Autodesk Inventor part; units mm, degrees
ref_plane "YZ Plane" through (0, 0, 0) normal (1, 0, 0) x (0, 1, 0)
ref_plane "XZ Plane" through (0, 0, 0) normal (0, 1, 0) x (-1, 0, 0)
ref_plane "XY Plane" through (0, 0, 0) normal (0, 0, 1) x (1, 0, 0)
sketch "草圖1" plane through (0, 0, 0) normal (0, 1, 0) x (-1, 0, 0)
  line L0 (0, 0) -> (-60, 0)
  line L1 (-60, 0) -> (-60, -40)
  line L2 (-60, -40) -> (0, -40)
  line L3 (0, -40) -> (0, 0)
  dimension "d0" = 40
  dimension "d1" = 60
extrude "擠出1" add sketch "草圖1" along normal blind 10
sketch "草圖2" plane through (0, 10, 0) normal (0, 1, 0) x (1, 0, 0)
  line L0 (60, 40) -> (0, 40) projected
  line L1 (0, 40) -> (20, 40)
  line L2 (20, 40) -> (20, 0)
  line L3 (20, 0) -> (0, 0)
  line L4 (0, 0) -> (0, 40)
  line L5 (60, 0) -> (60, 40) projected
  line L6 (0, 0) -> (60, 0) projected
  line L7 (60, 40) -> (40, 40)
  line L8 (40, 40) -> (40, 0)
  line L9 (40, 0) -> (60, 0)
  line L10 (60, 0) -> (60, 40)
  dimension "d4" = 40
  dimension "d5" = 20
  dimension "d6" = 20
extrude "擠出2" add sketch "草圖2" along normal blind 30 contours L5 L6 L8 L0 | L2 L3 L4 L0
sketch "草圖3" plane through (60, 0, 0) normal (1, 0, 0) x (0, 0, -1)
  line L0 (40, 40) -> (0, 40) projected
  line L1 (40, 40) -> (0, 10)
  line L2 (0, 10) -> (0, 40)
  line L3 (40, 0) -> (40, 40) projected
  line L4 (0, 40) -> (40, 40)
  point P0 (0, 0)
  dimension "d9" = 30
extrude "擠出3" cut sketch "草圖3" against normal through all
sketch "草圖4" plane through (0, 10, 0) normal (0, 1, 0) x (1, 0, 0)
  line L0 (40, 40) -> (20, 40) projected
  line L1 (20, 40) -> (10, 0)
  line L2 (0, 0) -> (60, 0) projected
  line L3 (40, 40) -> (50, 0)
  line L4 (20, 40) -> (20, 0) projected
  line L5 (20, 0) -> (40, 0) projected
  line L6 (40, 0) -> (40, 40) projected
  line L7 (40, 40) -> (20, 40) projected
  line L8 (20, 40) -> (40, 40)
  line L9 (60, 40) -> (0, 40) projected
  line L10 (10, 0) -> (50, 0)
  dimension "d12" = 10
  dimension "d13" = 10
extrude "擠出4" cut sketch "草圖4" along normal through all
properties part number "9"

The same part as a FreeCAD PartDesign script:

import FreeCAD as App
import Part
import Sketcher
from FreeCAD import Vector

doc = App.newDocument("Part")
body = doc.addObject("PartDesign::Body", "Body")

# Sketch on XZ plane
sketch1 = body.newObject("Sketcher::SketchObject", "Sketch")
sketch1.AttachmentSupport = (doc.getObject("XZ_Plane"), [""])
sketch1.MapMode = "FlatFace"
sketch1.addGeometry(Part.LineSegment(Vector(0, -40, 0), Vector(0, 0, 0)), False)
sketch1.addGeometry(Part.LineSegment(Vector(0, 0, 0), Vector(60, 0, 0)), False)
sketch1.addGeometry(Part.LineSegment(Vector(60, 0, 0), Vector(60, -40, 0)), False)
sketch1.addGeometry(Part.LineSegment(Vector(60, -40, 0), Vector(0, -40, 0)), False)
sketch1.addConstraint(Sketcher.Constraint("Coincident", 0, 2, 1, 1))
sketch1.addConstraint(Sketcher.Constraint("Coincident", 1, 2, 2, 1))
sketch1.addConstraint(Sketcher.Constraint("Coincident", 2, 2, 3, 1))
sketch1.addConstraint(Sketcher.Constraint("Coincident", 3, 2, 0, 1))
sketch1.addConstraint(Sketcher.Constraint("Vertical", 0))
sketch1.addConstraint(Sketcher.Constraint("Horizontal", 1))
sketch1.addConstraint(Sketcher.Constraint("Vertical", 2))
sketch1.addConstraint(Sketcher.Constraint("Horizontal", 3))
sketch1.addConstraint(Sketcher.Constraint("Coincident", 0, 2, -1, 1))
sketch1.addConstraint(Sketcher.Constraint("DistanceX", 1, 1, 1, 2, 60.0))
sketch1.addConstraint(Sketcher.Constraint("DistanceY", 0, 1, 0, 2, 40.0))
pad1 = body.newObject("PartDesign::Pad", "Pad")
pad1.Profile = sketch1
pad1.Length = 10
pad1.Reversed = True

# Sketch on XZ plane
sketch2 = body.newObject("Sketcher::SketchObject", "Sketch001")
sketch2.AttachmentSupport = (doc.getObject("XZ_Plane"), [""])
sketch2.MapMode = "FlatFace"
sketch2.AttachmentOffset = App.Placement(Vector(0, 0, -10), App.Rotation())
sketch2.addGeometry(Part.LineSegment(Vector(60, 0, 0), Vector(60, -40, 0)), False)
sketch2.addGeometry(Part.LineSegment(Vector(60, -40, 0), Vector(40, -40, 0)), False)
sketch2.addGeometry(Part.LineSegment(Vector(40, -40, 0), Vector(40, 0, 0)), False)
sketch2.addGeometry(Part.LineSegment(Vector(40, 0, 0), Vector(60, 0, 0)), False)
sketch2.addGeometry(Part.LineSegment(Vector(20, 0, 0), Vector(20, -40, 0)), False)
sketch2.addGeometry(Part.LineSegment(Vector(20, -40, 0), Vector(0, -40, 0)), False)
sketch2.addGeometry(Part.LineSegment(Vector(0, -40, 0), Vector(0, 0, 0)), False)
sketch2.addGeometry(Part.LineSegment(Vector(0, 0, 0), Vector(20, 0, 0)), False)
sketch2.addConstraint(Sketcher.Constraint("Coincident", 0, 2, 1, 1))
sketch2.addConstraint(Sketcher.Constraint("Coincident", 1, 2, 2, 1))
sketch2.addConstraint(Sketcher.Constraint("Coincident", 2, 2, 3, 1))
sketch2.addConstraint(Sketcher.Constraint("Coincident", 3, 2, 0, 1))
sketch2.addConstraint(Sketcher.Constraint("Coincident", 4, 2, 5, 1))
sketch2.addConstraint(Sketcher.Constraint("Coincident", 5, 2, 6, 1))
sketch2.addConstraint(Sketcher.Constraint("Coincident", 6, 2, 7, 1))
sketch2.addConstraint(Sketcher.Constraint("Coincident", 7, 2, 4, 1))
sketch2.addConstraint(Sketcher.Constraint("Vertical", 0))
sketch2.addConstraint(Sketcher.Constraint("Horizontal", 1))
sketch2.addConstraint(Sketcher.Constraint("Vertical", 2))
sketch2.addConstraint(Sketcher.Constraint("Horizontal", 3))
sketch2.addConstraint(Sketcher.Constraint("Vertical", 4))
sketch2.addConstraint(Sketcher.Constraint("Horizontal", 5))
sketch2.addConstraint(Sketcher.Constraint("Vertical", 6))
sketch2.addConstraint(Sketcher.Constraint("Horizontal", 7))
sketch2.addConstraint(Sketcher.Constraint("Coincident", 6, 2, -1, 1))
sketch2.addConstraint(Sketcher.Constraint("PointOnObject", 2, 2, -1))
sketch2.addConstraint(Sketcher.Constraint("Horizontal", 1, 2, 4, 2))
sketch2.addConstraint(Sketcher.Constraint("Equal", 3, 5))
sketch2.addConstraint(Sketcher.Constraint("DistanceX", 1, 2, 1, 1, 20.0))
sketch2.addConstraint(Sketcher.Constraint("DistanceY", 0, 2, 0, 1, 40.0))
sketch2.addConstraint(Sketcher.Constraint("DistanceX", -1, 1, 1, 2, 40.0))
pad2 = body.newObject("PartDesign::Pad", "Pad001")
pad2.Profile = sketch2
pad2.Length = 30
pad2.Reversed = True

# Sketch on YZ plane
sketch3 = body.newObject("Sketcher::SketchObject", "Sketch002")
sketch3.AttachmentSupport = (doc.getObject("YZ_Plane"), [""])
sketch3.MapMode = "FlatFace"
sketch3.AttachmentOffset = App.Placement(Vector(0, 0, 60), App.Rotation())
sketch3.addGeometry(Part.LineSegment(Vector(10, 0, 0), Vector(40, -40, 0)), False)
sketch3.addGeometry(Part.LineSegment(Vector(40, -40, 0), Vector(40, 0, 0)), False)
sketch3.addGeometry(Part.LineSegment(Vector(40, 0, 0), Vector(10, 0, 0)), False)
sketch3.addConstraint(Sketcher.Constraint("Coincident", 0, 2, 1, 1))
sketch3.addConstraint(Sketcher.Constraint("Coincident", 1, 2, 2, 1))
sketch3.addConstraint(Sketcher.Constraint("Coincident", 2, 2, 0, 1))
sketch3.addConstraint(Sketcher.Constraint("Vertical", 1))
sketch3.addConstraint(Sketcher.Constraint("Horizontal", 2))
sketch3.addConstraint(Sketcher.Constraint("PointOnObject", 1, 2, -1))
sketch3.addConstraint(Sketcher.Constraint("DistanceX", 2, 2, 2, 1, 30.0))
sketch3.addConstraint(Sketcher.Constraint("DistanceY", 1, 1, 1, 2, 40.0))
sketch3.addConstraint(Sketcher.Constraint("DistanceX", -1, 1, 0, 2, 40.0))
pocket1 = body.newObject("PartDesign::Pocket", "Pocket")
pocket1.Profile = sketch3
pocket1.Type = "ThroughAll"

# Sketch on XZ plane
sketch4 = body.newObject("Sketcher::SketchObject", "Sketch003")
sketch4.AttachmentSupport = (doc.getObject("XZ_Plane"), [""])
sketch4.MapMode = "FlatFace"
sketch4.AttachmentOffset = App.Placement(Vector(0, 0, -10), App.Rotation())
sketch4.addGeometry(Part.LineSegment(Vector(50, 0, 0), Vector(40, -40, 0)), False)
sketch4.addGeometry(Part.LineSegment(Vector(40, -40, 0), Vector(20, -40, 0)), False)
sketch4.addGeometry(Part.LineSegment(Vector(20, -40, 0), Vector(10, 0, 0)), False)
sketch4.addGeometry(Part.LineSegment(Vector(10, 0, 0), Vector(50, 0, 0)), False)
sketch4.addConstraint(Sketcher.Constraint("Coincident", 0, 2, 1, 1))
sketch4.addConstraint(Sketcher.Constraint("Coincident", 1, 2, 2, 1))
sketch4.addConstraint(Sketcher.Constraint("Coincident", 2, 2, 3, 1))
sketch4.addConstraint(Sketcher.Constraint("Coincident", 3, 2, 0, 1))
sketch4.addConstraint(Sketcher.Constraint("Horizontal", 1))
sketch4.addConstraint(Sketcher.Constraint("Horizontal", 3))
sketch4.addConstraint(Sketcher.Constraint("PointOnObject", 2, 2, -1))
sketch4.addConstraint(Sketcher.Constraint("Equal", 0, 2))
sketch4.addConstraint(Sketcher.Constraint("DistanceX", -1, 1, 2, 2, 10.0))
sketch4.addConstraint(Sketcher.Constraint("DistanceX", 2, 2, 1, 2, 10.0))
sketch4.addConstraint(Sketcher.Constraint("DistanceX", 1, 2, 1, 1, 20.0))
sketch4.addConstraint(Sketcher.Constraint("DistanceY", 0, 2, -1, 1, 40.0))
pocket2 = body.newObject("PartDesign::Pocket", "Pocket001")
pocket2.Profile = sketch4
pocket2.Type = "ThroughAll"

doc.recompute()
